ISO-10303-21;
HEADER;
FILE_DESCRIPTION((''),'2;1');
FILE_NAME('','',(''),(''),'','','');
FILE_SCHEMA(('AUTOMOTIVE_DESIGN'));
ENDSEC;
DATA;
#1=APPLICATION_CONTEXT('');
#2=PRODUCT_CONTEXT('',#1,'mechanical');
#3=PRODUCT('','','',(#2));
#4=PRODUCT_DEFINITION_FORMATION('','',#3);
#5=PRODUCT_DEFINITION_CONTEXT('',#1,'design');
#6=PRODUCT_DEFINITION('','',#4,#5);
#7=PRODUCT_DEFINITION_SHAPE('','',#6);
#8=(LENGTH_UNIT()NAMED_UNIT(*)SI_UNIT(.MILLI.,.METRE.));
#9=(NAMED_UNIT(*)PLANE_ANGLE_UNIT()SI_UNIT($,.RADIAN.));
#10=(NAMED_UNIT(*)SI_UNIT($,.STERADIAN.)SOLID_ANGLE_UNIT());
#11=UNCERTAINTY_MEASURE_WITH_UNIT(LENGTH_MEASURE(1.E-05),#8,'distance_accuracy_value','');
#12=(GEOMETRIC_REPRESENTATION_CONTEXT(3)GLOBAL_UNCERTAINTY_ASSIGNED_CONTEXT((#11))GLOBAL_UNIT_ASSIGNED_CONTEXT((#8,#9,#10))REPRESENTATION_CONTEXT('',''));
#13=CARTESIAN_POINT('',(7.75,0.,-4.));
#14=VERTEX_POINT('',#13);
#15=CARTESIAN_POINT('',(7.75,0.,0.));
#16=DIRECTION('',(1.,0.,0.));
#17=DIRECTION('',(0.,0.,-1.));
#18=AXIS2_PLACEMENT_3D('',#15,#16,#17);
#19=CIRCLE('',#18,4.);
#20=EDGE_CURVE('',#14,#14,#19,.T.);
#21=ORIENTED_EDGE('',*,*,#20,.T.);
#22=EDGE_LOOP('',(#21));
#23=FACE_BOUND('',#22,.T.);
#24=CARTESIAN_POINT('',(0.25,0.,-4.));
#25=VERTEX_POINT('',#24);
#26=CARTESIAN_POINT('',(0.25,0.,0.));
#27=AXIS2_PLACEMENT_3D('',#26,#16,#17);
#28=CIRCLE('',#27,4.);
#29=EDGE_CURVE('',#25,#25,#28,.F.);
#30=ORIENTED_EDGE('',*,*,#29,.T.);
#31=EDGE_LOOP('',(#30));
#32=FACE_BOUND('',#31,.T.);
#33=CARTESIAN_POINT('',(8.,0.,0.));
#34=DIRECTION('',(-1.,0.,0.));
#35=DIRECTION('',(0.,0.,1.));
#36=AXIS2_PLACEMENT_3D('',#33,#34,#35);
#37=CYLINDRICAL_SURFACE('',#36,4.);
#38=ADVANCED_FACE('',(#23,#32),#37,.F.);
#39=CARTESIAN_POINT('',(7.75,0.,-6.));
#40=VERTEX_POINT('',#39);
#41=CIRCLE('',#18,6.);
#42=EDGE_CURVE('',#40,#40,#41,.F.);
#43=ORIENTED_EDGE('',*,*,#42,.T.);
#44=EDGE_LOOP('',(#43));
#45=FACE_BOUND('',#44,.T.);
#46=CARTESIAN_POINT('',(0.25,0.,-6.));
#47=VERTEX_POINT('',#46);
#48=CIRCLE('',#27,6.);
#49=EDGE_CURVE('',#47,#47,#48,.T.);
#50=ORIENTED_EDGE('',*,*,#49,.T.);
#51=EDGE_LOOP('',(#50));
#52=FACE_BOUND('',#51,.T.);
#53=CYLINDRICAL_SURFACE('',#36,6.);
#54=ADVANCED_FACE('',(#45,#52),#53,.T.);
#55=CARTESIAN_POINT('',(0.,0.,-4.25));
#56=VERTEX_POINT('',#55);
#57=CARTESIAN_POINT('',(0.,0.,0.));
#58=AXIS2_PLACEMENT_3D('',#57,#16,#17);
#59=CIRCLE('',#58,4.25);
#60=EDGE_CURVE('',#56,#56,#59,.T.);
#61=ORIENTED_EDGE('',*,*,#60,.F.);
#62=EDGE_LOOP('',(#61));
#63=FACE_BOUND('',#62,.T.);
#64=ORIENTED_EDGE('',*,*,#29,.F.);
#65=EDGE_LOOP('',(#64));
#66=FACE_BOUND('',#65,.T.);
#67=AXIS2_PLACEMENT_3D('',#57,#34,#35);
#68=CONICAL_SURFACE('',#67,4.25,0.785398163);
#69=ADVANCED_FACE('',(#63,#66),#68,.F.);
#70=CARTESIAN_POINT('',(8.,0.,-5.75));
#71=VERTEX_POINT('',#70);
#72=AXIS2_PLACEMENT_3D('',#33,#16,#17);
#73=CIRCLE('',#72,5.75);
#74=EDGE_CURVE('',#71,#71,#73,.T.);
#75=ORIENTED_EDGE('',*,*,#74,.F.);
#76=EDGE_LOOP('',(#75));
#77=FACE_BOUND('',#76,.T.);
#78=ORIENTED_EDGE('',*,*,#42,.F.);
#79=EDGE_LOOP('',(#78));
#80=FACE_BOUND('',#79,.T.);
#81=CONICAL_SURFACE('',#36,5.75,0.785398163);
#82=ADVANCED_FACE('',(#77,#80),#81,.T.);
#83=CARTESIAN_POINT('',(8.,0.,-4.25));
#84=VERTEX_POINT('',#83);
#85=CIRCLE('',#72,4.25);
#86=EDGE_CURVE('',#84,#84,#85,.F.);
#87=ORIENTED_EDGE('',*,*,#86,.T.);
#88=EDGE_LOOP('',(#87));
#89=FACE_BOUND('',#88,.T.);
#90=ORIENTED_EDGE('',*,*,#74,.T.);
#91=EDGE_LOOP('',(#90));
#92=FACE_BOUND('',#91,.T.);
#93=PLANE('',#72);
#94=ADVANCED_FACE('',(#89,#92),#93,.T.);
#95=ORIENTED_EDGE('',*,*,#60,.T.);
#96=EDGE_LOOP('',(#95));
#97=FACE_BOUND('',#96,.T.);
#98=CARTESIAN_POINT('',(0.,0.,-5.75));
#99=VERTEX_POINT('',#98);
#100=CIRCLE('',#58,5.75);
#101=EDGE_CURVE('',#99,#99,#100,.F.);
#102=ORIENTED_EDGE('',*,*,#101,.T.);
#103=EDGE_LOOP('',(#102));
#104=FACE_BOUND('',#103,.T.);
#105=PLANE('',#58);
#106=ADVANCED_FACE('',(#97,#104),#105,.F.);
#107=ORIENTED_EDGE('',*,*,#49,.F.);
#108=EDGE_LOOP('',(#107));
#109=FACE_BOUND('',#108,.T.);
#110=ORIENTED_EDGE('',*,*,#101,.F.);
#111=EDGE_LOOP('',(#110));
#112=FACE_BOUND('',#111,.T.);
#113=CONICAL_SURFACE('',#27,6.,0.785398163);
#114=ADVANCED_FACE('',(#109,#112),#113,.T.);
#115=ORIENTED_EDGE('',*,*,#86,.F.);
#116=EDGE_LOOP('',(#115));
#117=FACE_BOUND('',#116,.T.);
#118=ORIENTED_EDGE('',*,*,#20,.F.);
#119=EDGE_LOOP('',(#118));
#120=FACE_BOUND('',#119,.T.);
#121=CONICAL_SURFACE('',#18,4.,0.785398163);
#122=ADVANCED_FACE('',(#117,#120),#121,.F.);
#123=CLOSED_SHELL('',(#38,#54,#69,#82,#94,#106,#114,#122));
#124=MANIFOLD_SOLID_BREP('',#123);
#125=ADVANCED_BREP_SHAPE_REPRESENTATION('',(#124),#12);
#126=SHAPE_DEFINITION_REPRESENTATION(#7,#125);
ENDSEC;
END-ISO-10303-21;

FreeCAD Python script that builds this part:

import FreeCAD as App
import Part
import Sketcher

V = App.Vector
Q = App.Units.Quantity


def edges_at(feature, points):
    """Names of the edges that pass closest to the given points."""
    edges = feature.Shape.Edges
    near = lambda p: min(range(len(edges)), key=lambda i: edges[i].distToShape(Part.Vertex(*p))[0])
    return sorted({f"Edge{near(p) + 1}" for p in points})

doc = App.newDocument("Part")
body = doc.addObject("PartDesign::Body", "Body")

# Sketch on YZ plane
sketch1 = doc.addObject("Sketcher::SketchObject", "Sketch")
body.addObject(sketch1)
sketch1.AttachmentSupport = (doc.YZ_Plane, [""])
sketch1.MapMode = "FlatFace"
sketch1.addGeometry(Part.Circle(V(0, 0, 0), V(0, 0, 1), 6), False)
sketch1.addGeometry(Part.Circle(V(0, 0, 0), V(0, 0, 1), 4), False)
sketch1.addConstraint(Sketcher.Constraint("Coincident", 0, 3, -1, 1))
sketch1.addConstraint(Sketcher.Constraint("Coincident", 1, 3, -1, 1))
sketch1.addConstraint(Sketcher.Constraint("Diameter", 0, Q("12 mm")))
sketch1.addConstraint(Sketcher.Constraint("Diameter", 1, Q("8 mm")))
pad1 = doc.addObject("PartDesign::Pad", "Pad")
body.addObject(pad1)
pad1.Profile = sketch1
pad1.Length = 8
doc.recompute()

chamfer = doc.addObject("PartDesign::Chamfer", "Chamfer")
body.addObject(chamfer)
chamfer.Base = (pad1, edges_at(pad1, [
    (0, 0, 6),
    (8, 0, 6),
    (0, 0, 4),
    (8, 0, 4),
]))
chamfer.Size = 0.25

doc.recompute()
